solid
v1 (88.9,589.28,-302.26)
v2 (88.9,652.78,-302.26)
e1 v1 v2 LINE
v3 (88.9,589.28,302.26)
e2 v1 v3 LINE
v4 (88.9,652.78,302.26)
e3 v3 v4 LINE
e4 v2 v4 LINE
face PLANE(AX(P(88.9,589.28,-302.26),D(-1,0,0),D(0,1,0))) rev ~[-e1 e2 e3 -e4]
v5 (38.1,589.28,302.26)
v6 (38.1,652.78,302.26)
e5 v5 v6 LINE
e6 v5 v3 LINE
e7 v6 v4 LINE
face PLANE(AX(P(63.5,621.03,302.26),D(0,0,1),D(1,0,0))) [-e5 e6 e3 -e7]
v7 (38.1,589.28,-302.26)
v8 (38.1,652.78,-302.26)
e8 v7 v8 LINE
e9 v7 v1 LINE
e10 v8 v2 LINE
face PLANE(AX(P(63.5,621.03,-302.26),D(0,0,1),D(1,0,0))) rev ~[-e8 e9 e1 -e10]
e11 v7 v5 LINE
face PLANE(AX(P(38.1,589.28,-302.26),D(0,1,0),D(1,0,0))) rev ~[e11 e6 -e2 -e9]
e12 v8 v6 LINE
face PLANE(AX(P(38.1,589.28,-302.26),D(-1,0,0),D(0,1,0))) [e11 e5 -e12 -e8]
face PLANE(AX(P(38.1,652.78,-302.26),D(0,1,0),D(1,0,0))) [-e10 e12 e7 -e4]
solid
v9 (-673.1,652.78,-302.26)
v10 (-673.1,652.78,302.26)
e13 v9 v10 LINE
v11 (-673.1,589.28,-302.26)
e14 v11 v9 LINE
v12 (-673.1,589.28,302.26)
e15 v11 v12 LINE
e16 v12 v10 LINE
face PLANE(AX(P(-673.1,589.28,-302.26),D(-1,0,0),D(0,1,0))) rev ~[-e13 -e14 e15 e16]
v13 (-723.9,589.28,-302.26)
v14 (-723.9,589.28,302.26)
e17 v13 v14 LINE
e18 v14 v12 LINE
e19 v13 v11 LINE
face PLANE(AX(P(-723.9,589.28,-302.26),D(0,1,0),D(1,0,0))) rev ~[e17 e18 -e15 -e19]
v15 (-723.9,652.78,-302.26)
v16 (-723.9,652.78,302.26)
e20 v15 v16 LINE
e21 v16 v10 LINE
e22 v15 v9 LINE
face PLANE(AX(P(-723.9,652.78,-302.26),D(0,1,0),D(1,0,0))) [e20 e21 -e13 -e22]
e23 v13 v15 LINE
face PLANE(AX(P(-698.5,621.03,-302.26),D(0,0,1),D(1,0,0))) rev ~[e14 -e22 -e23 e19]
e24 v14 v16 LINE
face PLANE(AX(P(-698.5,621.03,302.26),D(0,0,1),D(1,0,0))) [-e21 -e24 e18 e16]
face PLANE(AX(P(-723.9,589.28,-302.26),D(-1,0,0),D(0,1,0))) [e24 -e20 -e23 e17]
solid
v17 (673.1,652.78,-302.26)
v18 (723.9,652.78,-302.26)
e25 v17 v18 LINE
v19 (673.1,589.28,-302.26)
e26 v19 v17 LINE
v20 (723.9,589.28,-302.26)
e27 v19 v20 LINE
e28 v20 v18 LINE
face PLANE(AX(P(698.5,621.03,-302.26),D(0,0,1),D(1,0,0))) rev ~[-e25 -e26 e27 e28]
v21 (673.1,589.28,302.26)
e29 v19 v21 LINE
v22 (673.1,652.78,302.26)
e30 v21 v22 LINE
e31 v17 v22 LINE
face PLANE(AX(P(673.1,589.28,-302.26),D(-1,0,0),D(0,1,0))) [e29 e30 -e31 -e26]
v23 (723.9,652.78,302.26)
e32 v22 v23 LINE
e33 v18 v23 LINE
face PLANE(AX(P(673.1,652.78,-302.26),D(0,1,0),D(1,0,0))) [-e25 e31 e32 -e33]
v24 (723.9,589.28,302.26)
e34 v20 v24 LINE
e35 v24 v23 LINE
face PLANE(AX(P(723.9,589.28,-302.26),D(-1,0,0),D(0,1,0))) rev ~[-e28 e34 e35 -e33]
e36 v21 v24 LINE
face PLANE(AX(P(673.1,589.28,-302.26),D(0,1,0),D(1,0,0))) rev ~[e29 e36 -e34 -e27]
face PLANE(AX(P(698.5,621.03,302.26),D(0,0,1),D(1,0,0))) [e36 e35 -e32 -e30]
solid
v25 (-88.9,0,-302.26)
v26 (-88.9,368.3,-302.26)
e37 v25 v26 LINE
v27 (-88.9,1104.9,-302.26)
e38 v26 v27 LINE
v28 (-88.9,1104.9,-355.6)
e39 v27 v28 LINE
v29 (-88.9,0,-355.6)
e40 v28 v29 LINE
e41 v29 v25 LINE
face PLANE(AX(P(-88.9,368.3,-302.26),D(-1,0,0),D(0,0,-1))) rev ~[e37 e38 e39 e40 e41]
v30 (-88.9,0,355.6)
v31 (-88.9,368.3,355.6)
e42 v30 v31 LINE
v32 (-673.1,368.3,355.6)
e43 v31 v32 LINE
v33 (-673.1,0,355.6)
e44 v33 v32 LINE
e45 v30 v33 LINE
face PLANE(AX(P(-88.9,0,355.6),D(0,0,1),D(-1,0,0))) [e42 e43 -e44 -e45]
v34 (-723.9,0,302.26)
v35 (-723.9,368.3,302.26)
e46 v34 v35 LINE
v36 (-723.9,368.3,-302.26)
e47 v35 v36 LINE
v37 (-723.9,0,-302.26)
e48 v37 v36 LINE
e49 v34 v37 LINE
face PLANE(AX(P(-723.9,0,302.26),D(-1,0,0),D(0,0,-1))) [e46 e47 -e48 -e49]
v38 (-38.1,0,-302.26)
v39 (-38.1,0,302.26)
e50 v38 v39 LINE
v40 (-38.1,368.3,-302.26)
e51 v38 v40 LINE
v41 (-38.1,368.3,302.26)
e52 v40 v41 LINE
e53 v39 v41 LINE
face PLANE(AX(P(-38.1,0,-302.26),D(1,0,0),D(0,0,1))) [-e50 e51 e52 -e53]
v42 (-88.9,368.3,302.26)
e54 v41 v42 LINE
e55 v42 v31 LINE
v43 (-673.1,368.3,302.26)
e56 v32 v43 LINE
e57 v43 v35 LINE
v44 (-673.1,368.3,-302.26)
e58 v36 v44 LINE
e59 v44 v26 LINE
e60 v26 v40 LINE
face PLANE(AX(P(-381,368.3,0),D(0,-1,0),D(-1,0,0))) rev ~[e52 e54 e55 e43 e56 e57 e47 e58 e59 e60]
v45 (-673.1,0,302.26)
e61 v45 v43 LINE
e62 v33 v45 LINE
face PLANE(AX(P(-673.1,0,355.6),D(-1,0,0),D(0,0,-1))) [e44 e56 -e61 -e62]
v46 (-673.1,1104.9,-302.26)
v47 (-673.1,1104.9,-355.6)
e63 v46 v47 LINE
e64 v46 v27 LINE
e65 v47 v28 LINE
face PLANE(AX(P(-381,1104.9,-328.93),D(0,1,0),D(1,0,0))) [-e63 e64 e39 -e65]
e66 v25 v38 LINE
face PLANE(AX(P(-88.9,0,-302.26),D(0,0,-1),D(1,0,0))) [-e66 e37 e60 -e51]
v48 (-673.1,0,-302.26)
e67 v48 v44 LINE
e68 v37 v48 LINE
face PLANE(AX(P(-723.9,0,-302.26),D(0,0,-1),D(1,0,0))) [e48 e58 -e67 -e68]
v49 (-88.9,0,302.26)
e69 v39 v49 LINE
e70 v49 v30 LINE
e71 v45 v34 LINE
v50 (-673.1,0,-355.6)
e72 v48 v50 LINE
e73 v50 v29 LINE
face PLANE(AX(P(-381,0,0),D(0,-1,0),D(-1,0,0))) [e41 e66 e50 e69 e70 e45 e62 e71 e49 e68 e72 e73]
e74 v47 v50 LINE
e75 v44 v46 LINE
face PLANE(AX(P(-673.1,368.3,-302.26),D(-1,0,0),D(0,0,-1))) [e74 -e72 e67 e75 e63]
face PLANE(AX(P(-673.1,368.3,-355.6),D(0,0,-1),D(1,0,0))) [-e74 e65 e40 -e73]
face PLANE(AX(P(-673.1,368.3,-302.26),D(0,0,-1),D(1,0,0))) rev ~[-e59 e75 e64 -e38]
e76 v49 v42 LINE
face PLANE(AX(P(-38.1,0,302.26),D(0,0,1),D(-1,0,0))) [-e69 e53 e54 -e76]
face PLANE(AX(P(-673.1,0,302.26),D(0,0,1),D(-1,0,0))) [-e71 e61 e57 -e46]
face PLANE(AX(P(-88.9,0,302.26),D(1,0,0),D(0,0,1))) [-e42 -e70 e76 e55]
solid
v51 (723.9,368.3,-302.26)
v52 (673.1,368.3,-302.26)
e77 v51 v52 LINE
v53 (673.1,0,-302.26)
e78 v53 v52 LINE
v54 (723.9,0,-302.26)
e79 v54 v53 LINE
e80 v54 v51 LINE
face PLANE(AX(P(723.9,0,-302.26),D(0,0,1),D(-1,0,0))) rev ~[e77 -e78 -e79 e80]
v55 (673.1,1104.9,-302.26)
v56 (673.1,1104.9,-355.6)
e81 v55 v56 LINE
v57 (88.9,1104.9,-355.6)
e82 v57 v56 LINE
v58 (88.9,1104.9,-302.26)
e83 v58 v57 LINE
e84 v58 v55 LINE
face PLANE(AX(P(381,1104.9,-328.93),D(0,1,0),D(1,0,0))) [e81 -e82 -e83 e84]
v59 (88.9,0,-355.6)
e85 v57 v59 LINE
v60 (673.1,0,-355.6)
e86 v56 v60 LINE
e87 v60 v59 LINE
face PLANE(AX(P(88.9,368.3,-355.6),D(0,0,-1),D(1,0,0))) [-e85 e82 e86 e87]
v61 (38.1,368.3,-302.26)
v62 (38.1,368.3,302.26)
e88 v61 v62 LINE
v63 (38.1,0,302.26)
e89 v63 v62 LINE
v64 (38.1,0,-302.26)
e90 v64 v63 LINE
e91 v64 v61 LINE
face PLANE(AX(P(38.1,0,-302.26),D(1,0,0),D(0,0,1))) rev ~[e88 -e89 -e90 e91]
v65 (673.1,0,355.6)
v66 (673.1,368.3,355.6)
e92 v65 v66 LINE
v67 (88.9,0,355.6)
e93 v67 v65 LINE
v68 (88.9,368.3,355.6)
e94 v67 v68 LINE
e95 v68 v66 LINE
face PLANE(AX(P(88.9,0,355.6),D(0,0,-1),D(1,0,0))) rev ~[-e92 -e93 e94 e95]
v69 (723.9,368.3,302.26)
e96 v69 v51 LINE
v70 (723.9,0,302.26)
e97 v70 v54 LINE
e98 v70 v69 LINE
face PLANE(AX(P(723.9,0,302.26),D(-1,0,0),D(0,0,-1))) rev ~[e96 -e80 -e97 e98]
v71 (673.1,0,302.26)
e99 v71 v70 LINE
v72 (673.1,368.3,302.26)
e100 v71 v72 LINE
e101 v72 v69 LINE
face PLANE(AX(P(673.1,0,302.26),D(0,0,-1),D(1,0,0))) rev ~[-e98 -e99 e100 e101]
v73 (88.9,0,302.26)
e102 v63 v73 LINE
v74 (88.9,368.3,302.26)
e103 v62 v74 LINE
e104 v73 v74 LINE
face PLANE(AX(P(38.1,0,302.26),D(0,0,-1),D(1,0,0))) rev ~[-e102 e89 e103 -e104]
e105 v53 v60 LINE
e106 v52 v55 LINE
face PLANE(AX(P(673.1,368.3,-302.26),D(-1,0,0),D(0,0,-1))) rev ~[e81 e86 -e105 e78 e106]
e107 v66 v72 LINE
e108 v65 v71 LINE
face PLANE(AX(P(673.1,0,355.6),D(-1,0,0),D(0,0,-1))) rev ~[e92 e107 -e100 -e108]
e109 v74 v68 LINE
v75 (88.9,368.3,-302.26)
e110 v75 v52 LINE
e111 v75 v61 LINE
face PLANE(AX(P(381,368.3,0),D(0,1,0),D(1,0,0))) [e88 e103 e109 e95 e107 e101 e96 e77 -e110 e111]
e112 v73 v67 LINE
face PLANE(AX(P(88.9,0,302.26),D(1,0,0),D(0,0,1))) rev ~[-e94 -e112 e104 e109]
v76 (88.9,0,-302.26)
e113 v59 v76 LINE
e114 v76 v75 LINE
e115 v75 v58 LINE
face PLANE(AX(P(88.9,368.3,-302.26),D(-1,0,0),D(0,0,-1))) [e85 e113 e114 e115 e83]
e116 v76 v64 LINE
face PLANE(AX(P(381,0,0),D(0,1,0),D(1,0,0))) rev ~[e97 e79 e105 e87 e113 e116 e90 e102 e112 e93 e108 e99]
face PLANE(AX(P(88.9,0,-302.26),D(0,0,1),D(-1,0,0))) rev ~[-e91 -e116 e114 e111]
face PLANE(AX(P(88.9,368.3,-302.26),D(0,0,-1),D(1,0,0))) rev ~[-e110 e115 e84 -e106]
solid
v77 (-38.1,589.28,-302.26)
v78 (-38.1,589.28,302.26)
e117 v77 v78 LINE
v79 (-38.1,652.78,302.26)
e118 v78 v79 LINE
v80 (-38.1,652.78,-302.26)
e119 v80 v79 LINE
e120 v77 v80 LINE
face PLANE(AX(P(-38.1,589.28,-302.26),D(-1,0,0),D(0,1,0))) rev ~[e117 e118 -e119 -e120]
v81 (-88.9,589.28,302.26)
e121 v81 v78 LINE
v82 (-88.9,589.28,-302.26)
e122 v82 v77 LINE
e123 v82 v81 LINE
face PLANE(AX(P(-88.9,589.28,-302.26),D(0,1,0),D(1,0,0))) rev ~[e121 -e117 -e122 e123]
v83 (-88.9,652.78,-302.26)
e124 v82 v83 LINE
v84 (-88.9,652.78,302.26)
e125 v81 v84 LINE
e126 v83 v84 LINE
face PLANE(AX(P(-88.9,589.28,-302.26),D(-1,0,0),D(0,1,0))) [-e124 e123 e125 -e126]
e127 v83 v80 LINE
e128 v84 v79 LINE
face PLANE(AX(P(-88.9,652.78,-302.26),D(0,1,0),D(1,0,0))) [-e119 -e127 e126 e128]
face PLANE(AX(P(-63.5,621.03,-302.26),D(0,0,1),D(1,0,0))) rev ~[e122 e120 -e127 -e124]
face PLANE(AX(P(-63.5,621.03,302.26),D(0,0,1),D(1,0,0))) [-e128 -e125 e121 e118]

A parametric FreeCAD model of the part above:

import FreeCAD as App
import Part
import Sketcher
Q = App.Units.Quantity


def add_polygon(sketch, points):
    """Adds a closed chain of lines whose ends are joined by coincident constraints."""
    first, n = sketch.GeometryCount, len(points)
    for a, b in zip(points, points[1:] + points[:1]):
        sketch.addGeometry(Part.LineSegment(App.Vector(*a, 0), App.Vector(*b, 0)), False)
    for i in range(n):
        sketch.addConstraint(Sketcher.Constraint("Coincident", first + i, 2, first + (i + 1) % n, 1))

doc = App.newDocument("Part")
params = doc.addObject("Spreadsheet::Sheet", "Params")
for row, (alias, value) in enumerate([
    ("sketch1_width", "2 in"),
    ("sketch1_width2", "23 in"),
    ("sketch1_height", "23.8 in"),
    ("sketch1_height2", "2.1 in"),
    ("pad1_length", "14.5 in"),
    ("sketch2_width", "23 in"),
    ("sketch2_width2", "2 in"),
    ("sketch2_height", "2.1 in"),
    ("sketch2_height2", "23.8 in"),
    ("pad2_length", "14.5 in"),
    ("sketch3_width", "23 in"),
    ("sketch3_height", "2.1 in"),
    ("pad3_length", "29 in"),
    ("sketch4_width", "2 in"),
    ("sketch4_height", "2.5 in"),
    ("pad4_length", "23.8 in"),
    ("sketch5_width", "2 in"),
    ("sketch5_height", "2.5 in"),
    ("pad5_length", "23.8 in"),
    ("sketch6_width", "2 in"),
    ("sketch6_height", "2.5 in"),
    ("pad6_length", "23.8 in"),
    ("sketch7_width", "2 in"),
    ("sketch7_height", "2.5 in"),
    ("pad7_length", "23.8 in"),
], start=1):
    params.set(f"A{row}", alias)
    params.set(f"B{row}", "=" + value)
    params.setAlias(f"B{row}", alias)

body = doc.addObject("PartDesign::Body", "Body")

# Sketch on XZ plane
sketch1 = body.newObject("Sketcher::SketchObject", "Sketch")
sketch1.AttachmentSupport = (doc.getObject("XZ_Plane"), [""])
sketch1.MapMode = "FlatFace"
add_polygon(sketch1, [(-673, -302), (-724, -302), (-724, 302), (-673, 302), (-673, 356), (-89, 356), (-89, 302), (-38, 302), (-38, -302), (-89, -302), (-89, -356), (-673, -356)])  # lines 0-11
sketch1.addConstraint(Sketcher.Constraint("Horizontal", 0))
sketch1.addConstraint(Sketcher.Constraint("Vertical", 1))
sketch1.addConstraint(Sketcher.Constraint("Horizontal", 2))
sketch1.addConstraint(Sketcher.Constraint("Vertical", 3))
sketch1.addConstraint(Sketcher.Constraint("Horizontal", 4))
sketch1.addConstraint(Sketcher.Constraint("Vertical", 5))
sketch1.addConstraint(Sketcher.Constraint("Horizontal", 6))
sketch1.addConstraint(Sketcher.Constraint("Vertical", 7))
sketch1.addConstraint(Sketcher.Constraint("Horizontal", 8))
sketch1.addConstraint(Sketcher.Constraint("Vertical", 9))
sketch1.addConstraint(Sketcher.Constraint("Horizontal", 10))
sketch1.addConstraint(Sketcher.Constraint("Vertical", 11))
sketch1.addConstraint(Sketcher.Constraint("Symmetric", 5, 2, 8, 2, -1))
sketch1.addConstraint(Sketcher.Constraint("Symmetric", 3, 2, 10, 2, -1))
sketch1.addConstraint(Sketcher.Constraint("Horizontal", 2, 2, 5, 2))
sketch1.addConstraint(Sketcher.Constraint("Horizontal", 0, 2, 7, 2))
sketch1.addConstraint(Sketcher.Constraint("Equal", 2, 6))
sketch1.addConstraint(Sketcher.Constraint("DistanceX", 0, 2, 0, 1, Q("2 in")))
sketch1.addConstraint(Sketcher.Constraint("DistanceX", 4, 1, 4, 2, Q("23 in")))
sketch1.addConstraint(Sketcher.Constraint("DistanceY", 1, 1, 1, 2, Q("23.8 in")))
sketch1.addConstraint(Sketcher.Constraint("DistanceY", 3, 1, 3, 2, Q("2.1 in")))
sketch1.addConstraint(Sketcher.Constraint("DistanceX", 0, 2, -1, 1, Q("28.5 in")))
sketch1.setExpression("Constraints[29]", "Params.sketch1_width")
sketch1.setExpression("Constraints[30]", "Params.sketch1_width2")
sketch1.setExpression("Constraints[31]", "Params.sketch1_height")
sketch1.setExpression("Constraints[32]", "Params.sketch1_height2")
pad1 = body.newObject("PartDesign::Pad", "Pad")
pad1.Profile = sketch1
pad1.setExpression("Length", "Params.pad1_length")
pad1.Reversed = True
body2 = doc.addObject("PartDesign::Body", "Body001")

# Sketch on XZ plane
sketch2 = body2.newObject("Sketcher::SketchObject", "Sketch001")
sketch2.AttachmentSupport = (doc.getObject("XZ_Plane001"), [""])
sketch2.MapMode = "FlatFace"
add_polygon(sketch2, [(89, 356), (673, 356), (673, 302), (724, 302), (724, -302), (673, -302), (673, -356), (89, -356), (89, -302), (38, -302), (38, 302), (89, 302)])  # lines 0-11
sketch2.addConstraint(Sketcher.Constraint("Horizontal", 0))
sketch2.addConstraint(Sketcher.Constraint("Vertical", 1))
sketch2.addConstraint(Sketcher.Constraint("Horizontal", 2))
sketch2.addConstraint(Sketcher.Constraint("Vertical", 3))
sketch2.addConstraint(Sketcher.Constraint("Horizontal", 4))
sketch2.addConstraint(Sketcher.Constraint("Vertical", 5))
sketch2.addConstraint(Sketcher.Constraint("Horizontal", 6))
sketch2.addConstraint(Sketcher.Constraint("Vertical", 7))
sketch2.addConstraint(Sketcher.Constraint("Horizontal", 8))
sketch2.addConstraint(Sketcher.Constraint("Vertical", 9))
sketch2.addConstraint(Sketcher.Constraint("Horizontal", 10))
sketch2.addConstraint(Sketcher.Constraint("Vertical", 11))
sketch2.addConstraint(Sketcher.Constraint("Symmetric", 1, 2, 4, 2, -1))
sketch2.addConstraint(Sketcher.Constraint("Symmetric", 7, 2, 10, 2, -1))
sketch2.addConstraint(Sketcher.Constraint("Horizontal", 4, 2, 7, 2))
sketch2.addConstraint(Sketcher.Constraint("Equal", 4, 8))
sketch2.addConstraint(Sketcher.Constraint("Equal", 1, 5))
sketch2.addConstraint(Sketcher.Constraint("DistanceX", 0, 1, 0, 2, Q("23 in")))
sketch2.addConstraint(Sketcher.Constraint("DistanceX", 2, 1, 2, 2, Q("2 in")))
sketch2.addConstraint(Sketcher.Constraint("DistanceY", 1, 2, 1, 1, Q("2.1 in")))
sketch2.addConstraint(Sketcher.Constraint("DistanceY", 3, 2, 3, 1, Q("23.8 in")))
sketch2.addConstraint(Sketcher.Constraint("DistanceX", -1, 1, 0, 2, Q("26.5 in")))
sketch2.setExpression("Constraints[29]", "Params.sketch2_width")
sketch2.setExpression("Constraints[30]", "Params.sketch2_width2")
sketch2.setExpression("Constraints[31]", "Params.sketch2_height")
sketch2.setExpression("Constraints[32]", "Params.sketch2_height2")
pad2 = body2.newObject("PartDesign::Pad", "Pad001")
pad2.Profile = sketch2
pad2.setExpression("Length", "Params.pad2_length")
pad2.Reversed = True
body.AllowCompound = True
doc.recompute()

boolean = body.newObject("PartDesign::Boolean", "Boolean")
boolean.Type = "Fuse"
boolean.addObjects([body2])

# Sketch on XZ plane
sketch3 = body.newObject("Sketcher::SketchObject", "Sketch002")
sketch3.AttachmentSupport = (doc.getObject("XZ_Plane"), [""])
sketch3.MapMode = "FlatFace"
sketch3.AttachmentOffset = App.Placement(App.Vector(0, 0, -14.5 * 25.4), App.Rotation())
add_polygon(sketch3, [(-673, -356), (-673, -302), (-89, -302), (-89, -356)])  # lines 0-3
add_polygon(sketch3, [(89, -356), (89, -302), (673, -302), (673, -356)])  # lines 4-7
sketch3.addConstraint(Sketcher.Constraint("Vertical", 0))
sketch3.addConstraint(Sketcher.Constraint("Horizontal", 1))
sketch3.addConstraint(Sketcher.Constraint("Vertical", 2))
sketch3.addConstraint(Sketcher.Constraint("Horizontal", 3))
sketch3.addConstraint(Sketcher.Constraint("Vertical", 4))
sketch3.addConstraint(Sketcher.Constraint("Horizontal", 5))
sketch3.addConstraint(Sketcher.Constraint("Vertical", 6))
sketch3.addConstraint(Sketcher.Constraint("Horizontal", 7))
sketch3.addConstraint(Sketcher.Constraint("Symmetric", 1, 2, 4, 2, -2))
sketch3.addConstraint(Sketcher.Constraint("Symmetric", 3, 2, 6, 2, -2))
sketch3.addConstraint(Sketcher.Constraint("DistanceX", 1, 1, 1, 2, Q("23 in")))
sketch3.addConstraint(Sketcher.Constraint("DistanceY", 0, 1, 0, 2, Q("2.1 in")))
sketch3.addConstraint(Sketcher.Constraint("DistanceY", 2, 2, -1, 1, Q("14 in")))
sketch3.addConstraint(Sketcher.Constraint("DistanceX", 1, 2, 4, 2, Q("7 in")))
sketch3.setExpression("Constraints[18]", "Params.sketch3_width")
sketch3.setExpression("Constraints[19]", "Params.sketch3_height")
pad3 = body.newObject("PartDesign::Pad", "Pad002")
pad3.Profile = sketch3
pad3.setExpression("Length", "Params.pad3_length")
pad3.Reversed = True
body3 = doc.addObject("PartDesign::Body", "Body002")

# Sketch on XY plane
sketch4 = body3.newObject("Sketcher::SketchObject", "Sketch003")
sketch4.AttachmentSupport = (doc.getObject("XY_Plane002"), [""])
sketch4.MapMode = "FlatFace"
sketch4.AttachmentOffset = App.Placement(App.Vector(0, 0, -11.9 * 25.4), App.Rotation())
add_polygon(sketch4, [(-724, 653), (-724, 589), (-673, 589), (-673, 653)])  # lines 0-3
sketch4.addConstraint(Sketcher.Constraint("Vertical", 0))
sketch4.addConstraint(Sketcher.Constraint("Horizontal", 1))
sketch4.addConstraint(Sketcher.Constraint("Vertical", 2))
sketch4.addConstraint(Sketcher.Constraint("Horizontal", 3))
sketch4.addConstraint(Sketcher.Constraint("DistanceX", 1, 1, 1, 2, Q("2 in")))
sketch4.addConstraint(Sketcher.Constraint("DistanceY", 0, 2, 0, 1, Q("2.5 in")))
sketch4.addConstraint(Sketcher.Constraint("DistanceX", 0, 2, -1, 1, Q("28.5 in")))
sketch4.addConstraint(Sketcher.Constraint("DistanceY", -1, 1, 0, 2, Q("23.2 in")))
sketch4.setExpression("Constraints[8]", "Params.sketch4_width")
sketch4.setExpression("Constraints[9]", "Params.sketch4_height")
pad4 = body3.newObject("PartDesign::Pad", "Pad003")
pad4.Profile = sketch4
pad4.setExpression("Length", "Params.pad4_length")
body4 = doc.addObject("PartDesign::Body", "Body003")

# Sketch on XY plane
sketch5 = body4.newObject("Sketcher::SketchObject", "Sketch004")
sketch5.AttachmentSupport = (doc.getObject("XY_Plane003"), [""])
sketch5.MapMode = "FlatFace"
sketch5.AttachmentOffset = App.Placement(App.Vector(0, 0, -11.9 * 25.4), App.Rotation())
add_polygon(sketch5, [(673, 653), (673, 589), (724, 589), (724, 653)])  # lines 0-3
sketch5.addConstraint(Sketcher.Constraint("Vertical", 0))
sketch5.addConstraint(Sketcher.Constraint("Horizontal", 1))
sketch5.addConstraint(Sketcher.Constraint("Vertical", 2))
sketch5.addConstraint(Sketcher.Constraint("Horizontal", 3))
sketch5.addConstraint(Sketcher.Constraint("DistanceX", 1, 1, 1, 2, Q("2 in")))
sketch5.addConstraint(Sketcher.Constraint("DistanceY", 0, 2, 0, 1, Q("2.5 in")))
sketch5.addConstraint(Sketcher.Constraint("DistanceX", -1, 1, 0, 2, Q("26.5 in")))
sketch5.addConstraint(Sketcher.Constraint("DistanceY", -1, 1, 0, 2, Q("23.2 in")))
sketch5.setExpression("Constraints[8]", "Params.sketch5_width")
sketch5.setExpression("Constraints[9]", "Params.sketch5_height")
pad5 = body4.newObject("PartDesign::Pad", "Pad004")
pad5.Profile = sketch5
pad5.setExpression("Length", "Params.pad5_length")
body5 = doc.addObject("PartDesign::Body", "Body004")

# Sketch on XY plane
sketch6 = body5.newObject("Sketcher::SketchObject", "Sketch005")
sketch6.AttachmentSupport = (doc.getObject("XY_Plane004"), [""])
sketch6.MapMode = "FlatFace"
sketch6.AttachmentOffset = App.Placement(App.Vector(0, 0, -11.9 * 25.4), App.Rotation())
add_polygon(sketch6, [(-89, 653), (-89, 589), (-38, 589), (-38, 653)])  # lines 0-3
sketch6.addConstraint(Sketcher.Constraint("Vertical", 0))
sketch6.addConstraint(Sketcher.Constraint("Horizontal", 1))
sketch6.addConstraint(Sketcher.Constraint("Vertical", 2))
sketch6.addConstraint(Sketcher.Constraint("Horizontal", 3))
sketch6.addConstraint(Sketcher.Constraint("DistanceX", 1, 1, 1, 2, Q("2 in")))
sketch6.addConstraint(Sketcher.Constraint("DistanceY", 0, 2, 0, 1, Q("2.5 in")))
sketch6.addConstraint(Sketcher.Constraint("DistanceX", 0, 2, -1, 1, Q("3.5 in")))
sketch6.addConstraint(Sketcher.Constraint("DistanceY", -1, 1, 0, 2, Q("23.2 in")))
sketch6.setExpression("Constraints[8]", "Params.sketch6_width")
sketch6.setExpression("Constraints[9]", "Params.sketch6_height")
pad6 = body5.newObject("PartDesign::Pad", "Pad005")
pad6.Profile = sketch6
pad6.setExpression("Length", "Params.pad6_length")
body6 = doc.addObject("PartDesign::Body", "Body005")

# Sketch on XY plane
sketch7 = body6.newObject("Sketcher::SketchObject", "Sketch006")
sketch7.AttachmentSupport = (doc.getObject("XY_Plane005"), [""])
sketch7.MapMode = "FlatFace"
sketch7.AttachmentOffset = App.Placement(App.Vector(0, 0, -11.9 * 25.4), App.Rotation())
add_polygon(sketch7, [(38, 653), (38, 589), (89, 589), (89, 653)])  # lines 0-3
sketch7.addConstraint(Sketcher.Constraint("Vertical", 0))
sketch7.addConstraint(Sketcher.Constraint("Horizontal", 1))
sketch7.addConstraint(Sketcher.Constraint("Vertical", 2))
sketch7.addConstraint(Sketcher.Constraint("Horizontal", 3))
sketch7.addConstraint(Sketcher.Constraint("DistanceX", 1, 1, 1, 2, Q("2 in")))
sketch7.addConstraint(Sketcher.Constraint("DistanceY", 0, 2, 0, 1, Q("2.5 in")))
sketch7.addConstraint(Sketcher.Constraint("DistanceX", -1, 1, 0, 2, Q("1.5 in")))
sketch7.addConstraint(Sketcher.Constraint("DistanceY", -1, 1, 0, 2, Q("23.2 in")))
sketch7.setExpression("Constraints[8]", "Params.sketch7_width")
sketch7.setExpression("Constraints[9]", "Params.sketch7_height")
pad7 = body6.newObject("PartDesign::Pad", "Pad006")
pad7.Profile = sketch7
pad7.setExpression("Length", "Params.pad7_length")

doc.recompute()
